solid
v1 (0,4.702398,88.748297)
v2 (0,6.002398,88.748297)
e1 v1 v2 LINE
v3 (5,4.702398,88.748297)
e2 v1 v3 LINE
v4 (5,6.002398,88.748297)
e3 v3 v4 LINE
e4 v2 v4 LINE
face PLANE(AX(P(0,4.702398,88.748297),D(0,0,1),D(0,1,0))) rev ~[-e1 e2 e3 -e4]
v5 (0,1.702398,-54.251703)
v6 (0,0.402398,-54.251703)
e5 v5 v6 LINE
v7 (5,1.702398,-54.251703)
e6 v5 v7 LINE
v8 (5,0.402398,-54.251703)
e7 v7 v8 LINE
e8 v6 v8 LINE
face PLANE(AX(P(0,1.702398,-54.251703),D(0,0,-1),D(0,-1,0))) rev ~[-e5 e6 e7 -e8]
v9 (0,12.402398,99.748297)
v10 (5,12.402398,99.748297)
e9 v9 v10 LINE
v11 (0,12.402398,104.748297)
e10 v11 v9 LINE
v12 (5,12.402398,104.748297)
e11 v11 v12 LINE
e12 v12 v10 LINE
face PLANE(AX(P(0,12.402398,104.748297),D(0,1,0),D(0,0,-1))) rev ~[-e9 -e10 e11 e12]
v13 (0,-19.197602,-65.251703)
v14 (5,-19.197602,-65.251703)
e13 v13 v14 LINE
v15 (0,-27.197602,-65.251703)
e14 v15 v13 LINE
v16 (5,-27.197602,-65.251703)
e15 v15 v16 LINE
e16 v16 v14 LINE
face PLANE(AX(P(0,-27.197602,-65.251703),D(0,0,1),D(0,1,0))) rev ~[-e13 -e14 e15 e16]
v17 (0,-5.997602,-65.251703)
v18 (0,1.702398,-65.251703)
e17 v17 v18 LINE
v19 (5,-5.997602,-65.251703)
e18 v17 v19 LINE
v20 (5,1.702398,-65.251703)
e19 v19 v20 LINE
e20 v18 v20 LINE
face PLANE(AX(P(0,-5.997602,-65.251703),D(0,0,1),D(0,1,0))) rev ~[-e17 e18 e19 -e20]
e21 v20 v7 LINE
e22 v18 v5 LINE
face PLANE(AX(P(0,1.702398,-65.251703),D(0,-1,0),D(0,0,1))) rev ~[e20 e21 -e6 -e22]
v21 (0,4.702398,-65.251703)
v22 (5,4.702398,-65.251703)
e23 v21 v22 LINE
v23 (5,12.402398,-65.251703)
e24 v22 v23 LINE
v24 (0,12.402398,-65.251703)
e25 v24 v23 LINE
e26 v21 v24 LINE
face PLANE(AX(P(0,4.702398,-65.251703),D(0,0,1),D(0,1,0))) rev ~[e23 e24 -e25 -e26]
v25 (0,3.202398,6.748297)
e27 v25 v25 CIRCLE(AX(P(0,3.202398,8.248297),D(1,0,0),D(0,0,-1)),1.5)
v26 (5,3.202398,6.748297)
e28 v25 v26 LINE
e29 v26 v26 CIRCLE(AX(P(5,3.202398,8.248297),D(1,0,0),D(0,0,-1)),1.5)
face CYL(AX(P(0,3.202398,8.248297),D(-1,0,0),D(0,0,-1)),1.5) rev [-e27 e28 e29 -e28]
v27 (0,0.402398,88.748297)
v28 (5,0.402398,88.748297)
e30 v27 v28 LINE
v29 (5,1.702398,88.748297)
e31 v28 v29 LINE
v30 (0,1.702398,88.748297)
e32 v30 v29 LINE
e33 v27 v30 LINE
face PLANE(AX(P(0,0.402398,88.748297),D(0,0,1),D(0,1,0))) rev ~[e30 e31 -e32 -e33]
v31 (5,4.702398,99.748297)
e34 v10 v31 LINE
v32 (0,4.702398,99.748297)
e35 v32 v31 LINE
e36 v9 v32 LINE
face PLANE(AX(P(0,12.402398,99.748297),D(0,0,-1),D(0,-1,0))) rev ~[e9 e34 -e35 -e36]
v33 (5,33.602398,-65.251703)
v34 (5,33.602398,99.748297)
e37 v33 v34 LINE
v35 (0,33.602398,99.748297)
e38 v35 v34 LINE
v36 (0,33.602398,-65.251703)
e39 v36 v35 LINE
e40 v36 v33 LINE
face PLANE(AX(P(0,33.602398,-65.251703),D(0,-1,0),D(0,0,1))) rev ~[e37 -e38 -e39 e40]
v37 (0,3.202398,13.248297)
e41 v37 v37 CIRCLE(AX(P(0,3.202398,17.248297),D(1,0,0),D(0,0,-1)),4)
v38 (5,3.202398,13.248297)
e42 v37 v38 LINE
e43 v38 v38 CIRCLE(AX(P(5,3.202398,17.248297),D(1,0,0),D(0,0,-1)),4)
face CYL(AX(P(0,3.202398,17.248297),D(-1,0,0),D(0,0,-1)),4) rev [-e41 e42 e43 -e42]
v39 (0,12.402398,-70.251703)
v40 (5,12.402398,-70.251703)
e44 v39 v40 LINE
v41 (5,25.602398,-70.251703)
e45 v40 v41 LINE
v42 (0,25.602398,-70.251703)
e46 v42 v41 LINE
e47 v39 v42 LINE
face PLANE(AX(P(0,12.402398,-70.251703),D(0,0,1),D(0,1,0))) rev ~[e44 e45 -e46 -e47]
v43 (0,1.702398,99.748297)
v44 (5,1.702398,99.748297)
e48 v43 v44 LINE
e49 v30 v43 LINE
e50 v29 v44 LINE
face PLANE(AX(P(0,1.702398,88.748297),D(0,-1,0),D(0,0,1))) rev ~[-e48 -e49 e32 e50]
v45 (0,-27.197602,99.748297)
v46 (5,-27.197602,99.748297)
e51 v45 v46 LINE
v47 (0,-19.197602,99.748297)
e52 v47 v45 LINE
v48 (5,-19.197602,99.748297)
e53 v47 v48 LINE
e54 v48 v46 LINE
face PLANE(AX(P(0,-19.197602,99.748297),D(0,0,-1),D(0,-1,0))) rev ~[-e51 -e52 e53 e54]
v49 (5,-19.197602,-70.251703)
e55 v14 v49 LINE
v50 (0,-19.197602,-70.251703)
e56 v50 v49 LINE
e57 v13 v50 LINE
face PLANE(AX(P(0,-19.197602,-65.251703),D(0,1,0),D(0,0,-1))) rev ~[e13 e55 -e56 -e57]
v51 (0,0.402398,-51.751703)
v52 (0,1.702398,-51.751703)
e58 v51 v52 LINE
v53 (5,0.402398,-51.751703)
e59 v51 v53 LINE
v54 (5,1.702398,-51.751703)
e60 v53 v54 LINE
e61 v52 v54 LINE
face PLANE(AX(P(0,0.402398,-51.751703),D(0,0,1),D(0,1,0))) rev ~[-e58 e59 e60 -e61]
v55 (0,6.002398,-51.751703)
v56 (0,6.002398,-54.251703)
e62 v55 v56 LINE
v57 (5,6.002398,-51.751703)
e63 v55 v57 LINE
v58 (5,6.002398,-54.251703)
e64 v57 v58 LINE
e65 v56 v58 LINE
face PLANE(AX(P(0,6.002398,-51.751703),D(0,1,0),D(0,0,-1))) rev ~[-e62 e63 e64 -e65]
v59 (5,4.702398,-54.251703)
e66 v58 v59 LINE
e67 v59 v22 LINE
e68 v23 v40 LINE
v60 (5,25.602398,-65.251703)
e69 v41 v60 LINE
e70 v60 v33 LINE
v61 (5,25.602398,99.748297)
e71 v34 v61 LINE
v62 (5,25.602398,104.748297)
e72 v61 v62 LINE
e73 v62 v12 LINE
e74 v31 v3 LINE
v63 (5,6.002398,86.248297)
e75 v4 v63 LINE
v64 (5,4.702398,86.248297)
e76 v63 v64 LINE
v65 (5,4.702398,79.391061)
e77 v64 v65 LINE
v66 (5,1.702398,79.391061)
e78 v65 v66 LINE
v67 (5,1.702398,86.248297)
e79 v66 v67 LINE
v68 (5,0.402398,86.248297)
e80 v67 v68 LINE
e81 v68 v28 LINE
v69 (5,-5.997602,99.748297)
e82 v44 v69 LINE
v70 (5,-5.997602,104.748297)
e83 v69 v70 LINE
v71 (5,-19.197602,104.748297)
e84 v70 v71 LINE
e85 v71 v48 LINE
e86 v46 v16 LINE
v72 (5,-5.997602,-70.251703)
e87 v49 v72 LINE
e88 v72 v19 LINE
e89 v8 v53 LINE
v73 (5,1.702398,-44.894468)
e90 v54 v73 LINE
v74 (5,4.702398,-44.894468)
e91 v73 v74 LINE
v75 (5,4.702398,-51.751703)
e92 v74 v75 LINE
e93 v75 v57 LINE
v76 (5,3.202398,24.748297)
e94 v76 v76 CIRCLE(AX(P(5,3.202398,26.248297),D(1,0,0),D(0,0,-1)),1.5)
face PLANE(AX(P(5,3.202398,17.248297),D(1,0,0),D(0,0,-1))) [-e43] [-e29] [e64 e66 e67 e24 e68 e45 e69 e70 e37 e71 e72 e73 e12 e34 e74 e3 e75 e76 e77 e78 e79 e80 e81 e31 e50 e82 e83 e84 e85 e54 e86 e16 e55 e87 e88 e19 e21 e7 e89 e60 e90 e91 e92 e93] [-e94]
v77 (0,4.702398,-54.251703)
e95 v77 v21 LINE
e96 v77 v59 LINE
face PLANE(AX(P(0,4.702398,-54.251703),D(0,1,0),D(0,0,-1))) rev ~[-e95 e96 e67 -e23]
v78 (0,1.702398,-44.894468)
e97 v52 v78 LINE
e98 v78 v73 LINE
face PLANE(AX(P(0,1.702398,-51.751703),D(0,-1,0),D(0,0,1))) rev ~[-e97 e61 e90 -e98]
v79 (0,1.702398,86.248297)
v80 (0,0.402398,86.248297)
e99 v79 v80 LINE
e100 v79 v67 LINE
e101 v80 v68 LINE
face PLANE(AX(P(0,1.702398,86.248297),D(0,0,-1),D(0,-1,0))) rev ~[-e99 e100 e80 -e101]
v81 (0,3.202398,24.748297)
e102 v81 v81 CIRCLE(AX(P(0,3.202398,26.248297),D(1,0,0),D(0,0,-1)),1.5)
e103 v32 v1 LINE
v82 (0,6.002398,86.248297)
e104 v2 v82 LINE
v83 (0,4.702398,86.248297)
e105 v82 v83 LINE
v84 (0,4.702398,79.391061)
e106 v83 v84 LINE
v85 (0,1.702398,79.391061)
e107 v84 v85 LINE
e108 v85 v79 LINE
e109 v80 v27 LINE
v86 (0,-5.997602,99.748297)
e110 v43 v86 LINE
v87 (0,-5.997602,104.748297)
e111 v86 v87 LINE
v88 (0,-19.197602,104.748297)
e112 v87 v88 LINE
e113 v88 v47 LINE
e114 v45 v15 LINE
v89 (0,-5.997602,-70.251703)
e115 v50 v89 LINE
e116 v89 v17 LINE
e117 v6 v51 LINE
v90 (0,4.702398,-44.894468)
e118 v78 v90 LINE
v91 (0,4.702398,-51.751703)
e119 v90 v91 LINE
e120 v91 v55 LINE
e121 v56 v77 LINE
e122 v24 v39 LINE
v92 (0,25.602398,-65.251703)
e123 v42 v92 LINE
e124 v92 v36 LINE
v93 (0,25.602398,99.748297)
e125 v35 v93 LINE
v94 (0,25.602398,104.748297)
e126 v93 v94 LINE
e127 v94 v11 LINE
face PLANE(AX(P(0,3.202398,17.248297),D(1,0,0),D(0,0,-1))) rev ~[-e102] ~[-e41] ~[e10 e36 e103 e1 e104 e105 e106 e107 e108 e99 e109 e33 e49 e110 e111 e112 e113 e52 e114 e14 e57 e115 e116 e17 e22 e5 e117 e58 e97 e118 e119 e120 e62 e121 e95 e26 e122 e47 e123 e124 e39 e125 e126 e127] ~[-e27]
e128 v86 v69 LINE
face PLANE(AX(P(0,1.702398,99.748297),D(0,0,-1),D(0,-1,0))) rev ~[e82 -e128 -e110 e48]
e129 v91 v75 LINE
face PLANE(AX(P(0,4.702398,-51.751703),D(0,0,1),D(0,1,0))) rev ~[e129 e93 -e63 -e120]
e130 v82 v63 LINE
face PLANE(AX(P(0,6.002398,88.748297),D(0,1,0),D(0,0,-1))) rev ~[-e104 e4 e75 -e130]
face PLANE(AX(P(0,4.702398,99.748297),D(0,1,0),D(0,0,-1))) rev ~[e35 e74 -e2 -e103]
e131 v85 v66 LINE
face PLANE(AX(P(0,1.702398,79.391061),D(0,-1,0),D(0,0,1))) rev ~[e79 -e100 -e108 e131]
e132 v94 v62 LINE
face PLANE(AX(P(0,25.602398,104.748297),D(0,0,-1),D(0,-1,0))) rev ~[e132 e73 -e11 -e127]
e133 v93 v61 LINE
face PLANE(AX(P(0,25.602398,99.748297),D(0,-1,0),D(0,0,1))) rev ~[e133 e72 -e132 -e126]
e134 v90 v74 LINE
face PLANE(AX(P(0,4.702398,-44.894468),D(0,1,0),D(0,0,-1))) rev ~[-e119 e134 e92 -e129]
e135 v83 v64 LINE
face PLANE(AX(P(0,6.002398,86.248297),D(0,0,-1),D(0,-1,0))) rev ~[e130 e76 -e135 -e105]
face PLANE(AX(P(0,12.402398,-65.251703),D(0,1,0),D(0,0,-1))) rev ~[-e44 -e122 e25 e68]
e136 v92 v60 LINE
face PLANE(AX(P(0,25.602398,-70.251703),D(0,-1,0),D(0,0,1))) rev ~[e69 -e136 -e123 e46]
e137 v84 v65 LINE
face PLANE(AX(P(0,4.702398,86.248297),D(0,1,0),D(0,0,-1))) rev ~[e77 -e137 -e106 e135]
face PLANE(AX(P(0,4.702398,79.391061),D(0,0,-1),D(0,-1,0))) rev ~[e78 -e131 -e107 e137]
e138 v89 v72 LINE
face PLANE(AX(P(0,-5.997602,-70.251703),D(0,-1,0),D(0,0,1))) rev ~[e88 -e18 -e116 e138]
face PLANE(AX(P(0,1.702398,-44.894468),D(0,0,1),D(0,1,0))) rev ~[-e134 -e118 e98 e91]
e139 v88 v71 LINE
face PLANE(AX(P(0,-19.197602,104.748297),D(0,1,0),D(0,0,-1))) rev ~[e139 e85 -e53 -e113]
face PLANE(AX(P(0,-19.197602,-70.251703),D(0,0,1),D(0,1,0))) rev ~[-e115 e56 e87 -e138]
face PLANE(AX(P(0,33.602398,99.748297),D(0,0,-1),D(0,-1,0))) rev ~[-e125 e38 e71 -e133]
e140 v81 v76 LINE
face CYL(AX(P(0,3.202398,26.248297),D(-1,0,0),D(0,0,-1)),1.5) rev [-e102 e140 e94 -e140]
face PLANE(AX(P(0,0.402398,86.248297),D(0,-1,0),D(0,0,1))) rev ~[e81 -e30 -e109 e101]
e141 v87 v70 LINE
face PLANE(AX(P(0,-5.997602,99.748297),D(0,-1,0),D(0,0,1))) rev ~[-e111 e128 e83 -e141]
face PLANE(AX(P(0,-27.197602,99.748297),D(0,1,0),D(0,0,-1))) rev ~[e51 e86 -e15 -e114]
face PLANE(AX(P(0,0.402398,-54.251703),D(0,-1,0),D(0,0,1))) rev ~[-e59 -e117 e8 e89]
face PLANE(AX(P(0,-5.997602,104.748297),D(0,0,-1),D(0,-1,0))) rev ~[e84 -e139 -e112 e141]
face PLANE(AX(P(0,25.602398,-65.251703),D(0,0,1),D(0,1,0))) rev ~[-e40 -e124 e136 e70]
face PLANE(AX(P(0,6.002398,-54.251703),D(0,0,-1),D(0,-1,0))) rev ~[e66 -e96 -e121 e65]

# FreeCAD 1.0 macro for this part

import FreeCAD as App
import Part
import Sketcher

V = App.Vector


def add_polygon(sketch, points):
    """Adds a closed chain of lines whose ends are joined by coincident constraints."""
    first, n = sketch.GeometryCount, len(points)
    for a, b in zip(points, points[1:] + points[:1]):
        sketch.addGeometry(Part.LineSegment(App.Vector(*a, 0), App.Vector(*b, 0)), False)
    for i in range(n):
        sketch.addConstraint(Sketcher.Constraint("Coincident", first + i, 2, first + (i + 1) % n, 1))

doc = App.newDocument("Part")
params = doc.addObject("Spreadsheet::Sheet", "Params")
for row, (alias, value) in enumerate([
    ("sketch1_diameter", "3 mm"),
    ("sketch1_diameter2", "8 mm"),
    ("sketch1_width", "8 mm"),
    ("sketch1_width2", "3 mm"),
    ("sketch1_height", "5 mm"),
    ("pad1_length", "5 mm"),
], start=1):
    params.set(f"A{row}", alias)
    params.set(f"B{row}", "=" + value)
    params.setAlias(f"B{row}", alias)

body = doc.addObject("PartDesign::Body", "Body")

# Sketch on YZ plane
sketch1 = doc.addObject("Sketcher::SketchObject", "Sketch")
body.addObject(sketch1)
sketch1.AttachmentSupport = (doc.YZ_Plane, [""])
sketch1.MapMode = "FlatFace"
add_polygon(sketch1, [(12.4, -70.3), (25.6, -70.3), (25.6, -65.3), (33.6, -65.3), (33.6, 99.7), (25.6, 99.7), (25.6, 104.7), (12.4, 104.7), (12.4, 99.7), (4.7, 99.7), (4.7, 88.7), (6, 88.7), (6, 86.2), (4.7, 86.2), (4.7, 79.4), (1.7, 79.4), (1.7, 86.2), (0.4, 86.2), (0.4, 88.7), (1.7, 88.7), (1.7, 99.7), (-6, 99.7), (-6, 104.7), (-19.2, 104.7), (-19.2, 99.7), (-27.2, 99.7), (-27.2, -65.3), (-19.2, -65.3), (-19.2, -70.3), (-6, -70.3), (-6, -65.3), (1.7, -65.3), (1.7, -54.3), (0.4, -54.3), (0.4, -51.8), (1.7, -51.8), (1.7, -44.9), (4.7, -44.9), (4.7, -51.8), (6, -51.8), (6, -54.3), (4.7, -54.3), (4.7, -65.3), (12.4, -65.3)])  # lines 0-43
sketch1.addGeometry(Part.Circle(V(3.2, 26.2, 0), V(0, 0, 1), 1.5), False)  # 44
sketch1.addGeometry(Part.Circle(V(3.2, 17.2, 0), V(0, 0, 1), 4), False)  # 45
sketch1.addGeometry(Part.Circle(V(3.2, 8.2, 0), V(0, 0, 1), 1.5), False)  # 46
sketch1.addConstraint([
    Sketcher.Constraint("Horizontal", 0),
    Sketcher.Constraint("Vertical", 1),
    Sketcher.Constraint("Horizontal", 2),
    Sketcher.Constraint("Vertical", 3),
    Sketcher.Constraint("Horizontal", 4),
    Sketcher.Constraint("Vertical", 5),
    Sketcher.Constraint("Horizontal", 6),
    Sketcher.Constraint("Vertical", 7),
    Sketcher.Constraint("Horizontal", 8),
    Sketcher.Constraint("Vertical", 9),
    Sketcher.Constraint("Horizontal", 10),
    Sketcher.Constraint("Vertical", 11),
    Sketcher.Constraint("Horizontal", 12),
    Sketcher.Constraint("Vertical", 13),
    Sketcher.Constraint("Horizontal", 14),
    Sketcher.Constraint("Vertical", 15),
    Sketcher.Constraint("Horizontal", 16),
    Sketcher.Constraint("Vertical", 17),
    Sketcher.Constraint("Horizontal", 18),
    Sketcher.Constraint("Vertical", 19),
    Sketcher.Constraint("Horizontal", 20),
    Sketcher.Constraint("Vertical", 21),
    Sketcher.Constraint("Horizontal", 22),
    Sketcher.Constraint("Vertical", 23),
    Sketcher.Constraint("Horizontal", 24),
    Sketcher.Constraint("Vertical", 25),
    Sketcher.Constraint("Horizontal", 26),
    Sketcher.Constraint("Vertical", 27),
    Sketcher.Constraint("Horizontal", 28),
    Sketcher.Constraint("Vertical", 29),
    Sketcher.Constraint("Horizontal", 30),
    Sketcher.Constraint("Vertical", 31),
    Sketcher.Constraint("Horizontal", 32),
    Sketcher.Constraint("Vertical", 33),
    Sketcher.Constraint("Horizontal", 34),
    Sketcher.Constraint("Vertical", 35),
    Sketcher.Constraint("Horizontal", 36),
    Sketcher.Constraint("Vertical", 37),
    Sketcher.Constraint("Horizontal", 38),
    Sketcher.Constraint("Vertical", 39),
    Sketcher.Constraint("Horizontal", 40),
    Sketcher.Constraint("Vertical", 41),
    Sketcher.Constraint("Horizontal", 42),
    Sketcher.Constraint("Vertical", 43),
    Sketcher.Constraint("Equal", 44, 46),
    Sketcher.Constraint("Horizontal", 4, 2, 7, 2),
    Sketcher.Constraint("Horizontal", 12, 2, 15, 2),
    Sketcher.Constraint("Horizontal", 10, 2, 17, 2),
    Sketcher.Constraint("Horizontal", 8, 2, 19, 2),
    Sketcher.Constraint("Horizontal", 6, 2, 21, 2),
    Sketcher.Constraint("Horizontal", 20, 2, 23, 2),
    Sketcher.Constraint("Horizontal", 2, 2, 25, 2),
    Sketcher.Constraint("Horizontal", 0, 2, 27, 2),
    Sketcher.Constraint("Horizontal", 26, 2, 29, 2),
    Sketcher.Constraint("Horizontal", 34, 2, 37, 2),
    Sketcher.Constraint("Horizontal", 32, 2, 39, 2),
    Sketcher.Constraint("Horizontal", 30, 2, 41, 2),
    Sketcher.Constraint("Vertical", 44, 3, 45, 3),
    Sketcher.Constraint("Vertical", 45, 3, 46, 3),
    Sketcher.Constraint("Vertical", 1, 2, 4, 2),
    Sketcher.Constraint("Vertical", 9, 2, 12, 2),
    Sketcher.Constraint("Vertical", 15, 2, 18, 2),
    Sketcher.Constraint("Vertical", 23, 2, 26, 2),
    Sketcher.Constraint("Vertical", 21, 2, 28, 2),
    Sketcher.Constraint("Vertical", 19, 2, 30, 2),
    Sketcher.Constraint("Vertical", 17, 2, 32, 2),
    Sketcher.Constraint("Vertical", 31, 2, 34, 2),
    Sketcher.Constraint("Vertical", 13, 2, 36, 2),
    Sketcher.Constraint("Vertical", 11, 2, 38, 2),
    Sketcher.Constraint("Vertical", 37, 2, 40, 2),
    Sketcher.Constraint("Vertical", 7, 2, 42, 2),
    Sketcher.Constraint("Equal", 12, 16),
    Sketcher.Constraint("Equal", 8, 20),
    Sketcher.Constraint("Equal", 6, 22),
    Sketcher.Constraint("Equal", 4, 24),
    Sketcher.Constraint("Equal", 1, 5),
    Sketcher.Constraint("Equal", 19, 31),
    Sketcher.Constraint("Equal", 17, 33),
    Sketcher.Constraint("Equal", 15, 35),
    Sketcher.Constraint("Diameter", 44, 3.0),
    Sketcher.Constraint("Diameter", 45, 8.0),
    Sketcher.Constraint("DistanceX", 2, 1, 2, 2, 8.0),
    Sketcher.Constraint("DistanceX", 14, 2, 14, 1, 3.0),
    Sketcher.Constraint("DistanceY", 1, 1, 1, 2, 5.0),
    Sketcher.Constraint("DistanceY", 3, 1, 3, 2, 165.0),
    Sketcher.Constraint("DistanceY", 9, 2, 9, 1, 11.0),
    Sketcher.Constraint("DistanceX", 0, 1, 0, 2, 13.2),
    Sketcher.Constraint("DistanceX", 8, 2, 8, 1, 7.7),
    Sketcher.Constraint("DistanceX", 10, 1, 10, 2, 1.3),
    Sketcher.Constraint("DistanceY", 11, 2, 11, 1, 2.5),
    Sketcher.Constraint("DistanceY", 45, 3, 44, 3, 9.0),
    Sketcher.Constraint("DistanceY", 46, 3, 45, 3, 9.0),
    Sketcher.Constraint("DistanceX", 46, 3, 0, 2, 22.4),
    Sketcher.Constraint("DistanceY", 0, 2, 46, 3, 78.5),
    Sketcher.Constraint("DistanceX", -1, 1, 44, 3, 3.202398),
    Sketcher.Constraint("DistanceY", 13, 2, 13, 1, 6.857235),
    Sketcher.Constraint("DistanceY", -1, 1, 13, 2, 79.391061),
])
sketch1.setExpression("Constraints[123]", "Params.sketch1_diameter")
sketch1.setExpression("Constraints[124]", "Params.sketch1_diameter2")
sketch1.setExpression("Constraints[125]", "Params.sketch1_width")
sketch1.setExpression("Constraints[126]", "Params.sketch1_width2")
sketch1.setExpression("Constraints[127]", "Params.sketch1_height")
pad1 = doc.addObject("PartDesign::Pad", "Pad")
body.addObject(pad1)
pad1.Profile = sketch1
pad1.setExpression("Length", "Params.pad1_length")

doc.recompute()
